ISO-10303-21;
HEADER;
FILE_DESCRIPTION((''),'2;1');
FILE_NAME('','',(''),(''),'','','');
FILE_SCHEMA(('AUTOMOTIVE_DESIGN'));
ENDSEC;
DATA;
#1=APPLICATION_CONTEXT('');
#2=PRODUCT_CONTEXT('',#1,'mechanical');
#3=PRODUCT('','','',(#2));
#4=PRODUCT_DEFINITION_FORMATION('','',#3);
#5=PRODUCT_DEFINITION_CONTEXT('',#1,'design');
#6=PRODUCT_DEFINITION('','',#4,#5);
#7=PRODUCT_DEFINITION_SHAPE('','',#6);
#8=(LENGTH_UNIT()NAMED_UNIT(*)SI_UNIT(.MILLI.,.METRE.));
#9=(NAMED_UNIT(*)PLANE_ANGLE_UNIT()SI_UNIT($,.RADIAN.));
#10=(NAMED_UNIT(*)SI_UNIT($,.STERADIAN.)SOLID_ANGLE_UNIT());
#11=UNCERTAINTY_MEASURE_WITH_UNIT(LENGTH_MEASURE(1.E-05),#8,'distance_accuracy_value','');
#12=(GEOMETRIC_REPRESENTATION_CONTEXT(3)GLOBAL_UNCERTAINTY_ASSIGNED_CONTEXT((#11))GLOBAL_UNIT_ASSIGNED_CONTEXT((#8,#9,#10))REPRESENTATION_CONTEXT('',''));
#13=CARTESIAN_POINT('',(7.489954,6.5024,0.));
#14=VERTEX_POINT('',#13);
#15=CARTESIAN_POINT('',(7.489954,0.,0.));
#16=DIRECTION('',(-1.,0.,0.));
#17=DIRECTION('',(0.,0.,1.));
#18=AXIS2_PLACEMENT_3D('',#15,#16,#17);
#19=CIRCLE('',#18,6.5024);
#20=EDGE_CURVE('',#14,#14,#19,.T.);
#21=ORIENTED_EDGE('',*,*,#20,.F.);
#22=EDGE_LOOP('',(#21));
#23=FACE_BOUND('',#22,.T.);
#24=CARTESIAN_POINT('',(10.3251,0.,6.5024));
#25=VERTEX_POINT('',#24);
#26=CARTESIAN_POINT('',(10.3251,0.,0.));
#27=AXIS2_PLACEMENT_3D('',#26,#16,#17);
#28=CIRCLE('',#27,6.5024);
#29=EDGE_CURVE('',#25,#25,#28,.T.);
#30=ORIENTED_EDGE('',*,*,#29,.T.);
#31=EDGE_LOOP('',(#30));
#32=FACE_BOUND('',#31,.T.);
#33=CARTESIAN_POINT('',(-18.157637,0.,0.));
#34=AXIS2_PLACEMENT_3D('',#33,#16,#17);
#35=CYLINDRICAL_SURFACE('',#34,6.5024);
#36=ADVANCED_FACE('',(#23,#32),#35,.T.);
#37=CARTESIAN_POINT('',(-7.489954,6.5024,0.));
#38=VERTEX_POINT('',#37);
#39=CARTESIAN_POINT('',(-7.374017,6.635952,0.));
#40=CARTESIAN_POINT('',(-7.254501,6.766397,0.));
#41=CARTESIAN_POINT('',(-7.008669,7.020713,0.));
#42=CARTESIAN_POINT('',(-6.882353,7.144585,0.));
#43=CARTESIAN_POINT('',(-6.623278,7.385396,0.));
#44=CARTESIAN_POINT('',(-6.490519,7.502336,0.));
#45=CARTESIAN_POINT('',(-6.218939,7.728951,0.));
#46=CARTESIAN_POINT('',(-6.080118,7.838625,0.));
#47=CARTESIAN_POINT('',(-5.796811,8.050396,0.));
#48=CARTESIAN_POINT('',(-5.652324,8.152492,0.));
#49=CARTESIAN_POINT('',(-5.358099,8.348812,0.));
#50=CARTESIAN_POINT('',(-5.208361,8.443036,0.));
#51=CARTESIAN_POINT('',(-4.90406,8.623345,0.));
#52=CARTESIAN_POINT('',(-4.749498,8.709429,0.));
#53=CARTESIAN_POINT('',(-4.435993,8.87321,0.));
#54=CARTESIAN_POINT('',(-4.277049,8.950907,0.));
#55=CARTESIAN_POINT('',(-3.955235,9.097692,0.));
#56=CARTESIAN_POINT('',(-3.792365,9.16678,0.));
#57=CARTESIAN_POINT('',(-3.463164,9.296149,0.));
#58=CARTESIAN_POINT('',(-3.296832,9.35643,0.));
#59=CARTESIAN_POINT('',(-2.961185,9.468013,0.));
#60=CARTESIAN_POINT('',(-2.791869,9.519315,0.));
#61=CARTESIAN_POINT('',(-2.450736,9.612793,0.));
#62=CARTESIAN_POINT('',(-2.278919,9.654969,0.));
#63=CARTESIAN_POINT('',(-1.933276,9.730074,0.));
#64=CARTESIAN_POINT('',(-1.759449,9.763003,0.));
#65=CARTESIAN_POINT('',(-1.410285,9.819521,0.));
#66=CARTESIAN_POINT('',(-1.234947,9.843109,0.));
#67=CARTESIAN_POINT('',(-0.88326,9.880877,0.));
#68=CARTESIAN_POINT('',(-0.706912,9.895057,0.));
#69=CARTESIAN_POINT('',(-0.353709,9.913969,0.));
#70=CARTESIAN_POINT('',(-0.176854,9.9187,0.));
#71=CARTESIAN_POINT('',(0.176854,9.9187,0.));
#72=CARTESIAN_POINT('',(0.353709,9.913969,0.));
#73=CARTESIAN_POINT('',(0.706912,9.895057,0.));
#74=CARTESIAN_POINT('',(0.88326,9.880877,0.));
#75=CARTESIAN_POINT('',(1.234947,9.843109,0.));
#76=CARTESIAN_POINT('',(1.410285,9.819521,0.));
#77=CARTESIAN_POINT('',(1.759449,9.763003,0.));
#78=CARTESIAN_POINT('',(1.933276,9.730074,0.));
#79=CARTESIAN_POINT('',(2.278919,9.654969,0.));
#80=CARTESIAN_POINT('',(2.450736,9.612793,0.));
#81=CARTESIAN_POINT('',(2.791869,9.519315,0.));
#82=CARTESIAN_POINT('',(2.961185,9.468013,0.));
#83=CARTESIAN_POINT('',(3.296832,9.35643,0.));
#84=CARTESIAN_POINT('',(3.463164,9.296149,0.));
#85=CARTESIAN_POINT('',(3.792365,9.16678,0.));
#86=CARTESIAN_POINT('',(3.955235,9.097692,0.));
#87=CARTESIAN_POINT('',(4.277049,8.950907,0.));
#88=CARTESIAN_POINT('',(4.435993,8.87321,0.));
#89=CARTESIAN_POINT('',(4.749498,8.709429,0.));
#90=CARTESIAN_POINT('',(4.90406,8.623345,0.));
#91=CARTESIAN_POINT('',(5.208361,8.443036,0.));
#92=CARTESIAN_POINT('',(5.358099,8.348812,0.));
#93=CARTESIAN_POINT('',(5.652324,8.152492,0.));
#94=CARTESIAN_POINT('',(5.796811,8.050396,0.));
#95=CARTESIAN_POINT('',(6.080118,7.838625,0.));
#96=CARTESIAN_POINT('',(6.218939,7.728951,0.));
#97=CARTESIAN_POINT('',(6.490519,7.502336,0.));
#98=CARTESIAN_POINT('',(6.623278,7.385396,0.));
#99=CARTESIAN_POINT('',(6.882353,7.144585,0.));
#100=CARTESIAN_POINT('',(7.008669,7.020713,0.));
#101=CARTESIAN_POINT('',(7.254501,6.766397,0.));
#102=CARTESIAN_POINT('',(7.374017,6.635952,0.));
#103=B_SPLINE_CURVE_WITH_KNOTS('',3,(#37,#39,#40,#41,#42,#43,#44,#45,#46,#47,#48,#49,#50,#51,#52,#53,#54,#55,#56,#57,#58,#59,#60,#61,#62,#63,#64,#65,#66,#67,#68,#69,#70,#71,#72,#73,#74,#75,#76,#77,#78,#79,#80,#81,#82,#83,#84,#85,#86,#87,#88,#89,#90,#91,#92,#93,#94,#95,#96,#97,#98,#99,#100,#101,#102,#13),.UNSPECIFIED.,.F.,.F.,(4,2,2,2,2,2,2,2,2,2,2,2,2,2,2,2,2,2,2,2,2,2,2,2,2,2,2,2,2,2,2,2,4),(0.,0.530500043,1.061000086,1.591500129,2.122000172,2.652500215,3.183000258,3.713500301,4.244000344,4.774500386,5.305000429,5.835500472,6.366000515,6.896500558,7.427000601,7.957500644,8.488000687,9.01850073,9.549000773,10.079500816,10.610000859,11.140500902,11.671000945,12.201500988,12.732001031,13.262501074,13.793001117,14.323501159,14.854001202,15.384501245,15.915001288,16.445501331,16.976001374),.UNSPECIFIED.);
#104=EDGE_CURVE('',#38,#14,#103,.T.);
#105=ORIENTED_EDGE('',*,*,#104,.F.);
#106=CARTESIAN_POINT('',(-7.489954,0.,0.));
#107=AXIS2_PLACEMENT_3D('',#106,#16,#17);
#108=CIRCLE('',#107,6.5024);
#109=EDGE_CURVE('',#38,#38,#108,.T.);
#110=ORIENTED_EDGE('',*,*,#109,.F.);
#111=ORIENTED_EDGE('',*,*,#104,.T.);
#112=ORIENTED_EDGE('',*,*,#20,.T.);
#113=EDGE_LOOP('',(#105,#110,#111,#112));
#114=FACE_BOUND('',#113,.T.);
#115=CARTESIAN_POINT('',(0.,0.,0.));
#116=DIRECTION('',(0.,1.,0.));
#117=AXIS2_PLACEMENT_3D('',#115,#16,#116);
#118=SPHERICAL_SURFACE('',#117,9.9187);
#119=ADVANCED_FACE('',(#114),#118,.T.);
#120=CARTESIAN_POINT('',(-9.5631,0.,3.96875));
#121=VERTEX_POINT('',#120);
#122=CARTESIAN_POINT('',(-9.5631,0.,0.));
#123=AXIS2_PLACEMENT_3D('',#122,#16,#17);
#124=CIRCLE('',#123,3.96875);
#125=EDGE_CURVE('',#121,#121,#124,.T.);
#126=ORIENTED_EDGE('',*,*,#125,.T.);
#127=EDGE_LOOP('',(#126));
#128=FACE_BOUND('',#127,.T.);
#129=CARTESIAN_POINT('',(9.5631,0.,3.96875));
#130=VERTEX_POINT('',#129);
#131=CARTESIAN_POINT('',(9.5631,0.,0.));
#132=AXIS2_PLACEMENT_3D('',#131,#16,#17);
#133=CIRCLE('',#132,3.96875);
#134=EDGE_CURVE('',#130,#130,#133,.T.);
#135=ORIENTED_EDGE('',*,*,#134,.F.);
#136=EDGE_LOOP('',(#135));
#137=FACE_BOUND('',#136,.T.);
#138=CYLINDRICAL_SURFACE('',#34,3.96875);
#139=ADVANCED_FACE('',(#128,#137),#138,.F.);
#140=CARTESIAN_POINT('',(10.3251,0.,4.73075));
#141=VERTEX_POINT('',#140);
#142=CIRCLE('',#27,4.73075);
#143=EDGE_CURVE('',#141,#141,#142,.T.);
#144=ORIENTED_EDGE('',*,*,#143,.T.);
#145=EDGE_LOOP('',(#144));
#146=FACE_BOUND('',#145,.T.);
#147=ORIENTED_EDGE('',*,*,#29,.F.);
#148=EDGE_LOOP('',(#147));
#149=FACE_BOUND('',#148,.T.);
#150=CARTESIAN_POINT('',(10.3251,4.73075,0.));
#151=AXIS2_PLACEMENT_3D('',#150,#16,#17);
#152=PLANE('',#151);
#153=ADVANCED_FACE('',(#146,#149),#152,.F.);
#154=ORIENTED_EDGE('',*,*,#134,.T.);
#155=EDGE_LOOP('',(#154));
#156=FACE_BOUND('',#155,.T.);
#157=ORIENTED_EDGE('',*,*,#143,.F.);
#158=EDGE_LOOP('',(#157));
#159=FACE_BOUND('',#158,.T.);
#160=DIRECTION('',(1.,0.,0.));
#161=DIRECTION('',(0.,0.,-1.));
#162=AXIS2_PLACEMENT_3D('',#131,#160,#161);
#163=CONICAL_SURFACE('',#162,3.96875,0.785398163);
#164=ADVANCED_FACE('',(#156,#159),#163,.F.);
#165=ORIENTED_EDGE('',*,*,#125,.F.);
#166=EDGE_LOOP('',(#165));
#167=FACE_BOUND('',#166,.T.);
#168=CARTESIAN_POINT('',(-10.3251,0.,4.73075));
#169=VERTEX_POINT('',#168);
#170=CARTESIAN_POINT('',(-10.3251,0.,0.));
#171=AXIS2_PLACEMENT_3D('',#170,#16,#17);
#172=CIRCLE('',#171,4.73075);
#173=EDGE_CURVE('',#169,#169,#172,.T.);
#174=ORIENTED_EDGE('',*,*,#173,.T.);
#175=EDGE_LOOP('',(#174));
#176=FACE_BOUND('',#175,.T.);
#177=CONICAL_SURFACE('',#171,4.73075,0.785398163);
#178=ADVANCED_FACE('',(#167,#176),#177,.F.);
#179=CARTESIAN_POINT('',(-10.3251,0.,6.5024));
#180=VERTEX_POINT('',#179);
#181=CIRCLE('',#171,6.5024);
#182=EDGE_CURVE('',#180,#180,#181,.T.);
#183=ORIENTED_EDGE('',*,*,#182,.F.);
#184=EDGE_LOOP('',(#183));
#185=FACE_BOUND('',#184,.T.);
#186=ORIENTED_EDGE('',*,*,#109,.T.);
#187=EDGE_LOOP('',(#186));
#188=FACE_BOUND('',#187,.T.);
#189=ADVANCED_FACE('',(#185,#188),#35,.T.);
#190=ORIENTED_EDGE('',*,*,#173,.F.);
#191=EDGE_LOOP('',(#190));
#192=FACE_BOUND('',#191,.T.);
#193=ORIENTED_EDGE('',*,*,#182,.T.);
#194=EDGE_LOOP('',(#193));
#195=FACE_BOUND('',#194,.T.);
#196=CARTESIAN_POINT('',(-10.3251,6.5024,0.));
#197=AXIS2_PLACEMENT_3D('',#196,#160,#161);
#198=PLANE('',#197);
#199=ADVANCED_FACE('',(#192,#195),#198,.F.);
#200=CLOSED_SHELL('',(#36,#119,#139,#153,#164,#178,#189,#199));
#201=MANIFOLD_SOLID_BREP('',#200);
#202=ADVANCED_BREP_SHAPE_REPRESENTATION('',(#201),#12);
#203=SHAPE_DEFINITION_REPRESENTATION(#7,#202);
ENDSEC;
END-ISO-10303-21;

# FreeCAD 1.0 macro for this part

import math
import FreeCAD as App
import Part
import Sketcher
Q = App.Units.Quantity

doc = App.newDocument("Part")
params = doc.addObject("Spreadsheet::Sheet", "Params")
for row, (alias, value) in enumerate([
    ("sketch1_width", "0.753 in"),
    ("revolution_angle", "360 deg"),
], start=1):
    params.set(f"A{row}", alias)
    params.set(f"B{row}", "=" + value)
    params.setAlias(f"B{row}", alias)

body = doc.addObject("PartDesign::Body", "Body")

sketch1 = body.newObject("Sketcher::SketchObject", "Sketch")
sketch1.AttachmentSupport = (doc.getObject("XY_Plane"), [""])
sketch1.MapMode = "FlatFace"
sketch1.addGeometry(Part.LineSegment(App.Vector(-10.3, 6.5, 0), App.Vector(-10.3, 4.7, 0)), False)
sketch1.addGeometry(Part.LineSegment(App.Vector(-10.3, 4.7, 0), App.Vector(-9.6, 4, 0)), False)
sketch1.addGeometry(Part.LineSegment(App.Vector(-9.6, 4, 0), App.Vector(9.6, 4, 0)), False)
sketch1.addGeometry(Part.LineSegment(App.Vector(9.6, 4, 0), App.Vector(10.3, 4.7, 0)), False)
sketch1.addGeometry(Part.LineSegment(App.Vector(10.3, 4.7, 0), App.Vector(10.3, 6.5, 0)), False)
sketch1.addGeometry(Part.LineSegment(App.Vector(10.3, 6.5, 0), App.Vector(7.5, 6.5, 0)), False)
sketch1.addGeometry(Part.ArcOfCircle(Part.Circle(App.Vector(0, 0, 0), App.Vector(0, 0, 1), 9.9), math.radians(41), math.radians(139)), False)
sketch1.addGeometry(Part.LineSegment(App.Vector(-7.5, 6.5, 0), App.Vector(-10.3, 6.5, 0)), False)
sketch1.addConstraint(Sketcher.Constraint("Coincident", 0, 2, 1, 1))
sketch1.addConstraint(Sketcher.Constraint("Coincident", 1, 2, 2, 1))
sketch1.addConstraint(Sketcher.Constraint("Coincident", 2, 2, 3, 1))
sketch1.addConstraint(Sketcher.Constraint("Coincident", 3, 2, 4, 1))
sketch1.addConstraint(Sketcher.Constraint("Coincident", 4, 2, 5, 1))
sketch1.addConstraint(Sketcher.Constraint("Coincident", 5, 2, 6, 1))
sketch1.addConstraint(Sketcher.Constraint("Coincident", 6, 2, 7, 1))
sketch1.addConstraint(Sketcher.Constraint("Coincident", 7, 2, 0, 1))
sketch1.addConstraint(Sketcher.Constraint("Vertical", 0))
sketch1.addConstraint(Sketcher.Constraint("Horizontal", 2))
sketch1.addConstraint(Sketcher.Constraint("Vertical", 4))
sketch1.addConstraint(Sketcher.Constraint("Horizontal", 5))
sketch1.addConstraint(Sketcher.Constraint("Horizontal", 7))
sketch1.addConstraint(Sketcher.Constraint("Coincident", 6, 3, -1, 1))
sketch1.addConstraint(Sketcher.Constraint("Symmetric", 0, 2, 3, 2, -2))
sketch1.addConstraint(Sketcher.Constraint("Perpendicular", 1, 3))
sketch1.addConstraint(Sketcher.Constraint("Horizontal", 5, 2, 6, 2))
sketch1.addConstraint(Sketcher.Constraint("Equal", 1, 3))
sketch1.addConstraint(Sketcher.Constraint("Radius", 6, Q("0.3905 in")))
sketch1.addConstraint(Sketcher.Constraint("DistanceX", 2, 1, 2, 2, Q("0.753 in")))
sketch1.addConstraint(Sketcher.Constraint("DistanceX", 0, 2, 1, 2, Q("0.03 in")))
sketch1.addConstraint(Sketcher.Constraint("DistanceY", -1, 1, 1, 2, Q("0.15625 in")))
sketch1.addConstraint(Sketcher.Constraint("DistanceY", -1, 1, 4, 2, Q("0.256 in")))
sketch1.setExpression("Constraints[19]", "Params.sketch1_width")
revolution = body.newObject("PartDesign::Revolution", "Revolution")
revolution.Profile = sketch1
revolution.ReferenceAxis = (sketch1, ["H_Axis"])
revolution.setExpression("Angle", "Params.revolution_angle")

doc.recompute()
